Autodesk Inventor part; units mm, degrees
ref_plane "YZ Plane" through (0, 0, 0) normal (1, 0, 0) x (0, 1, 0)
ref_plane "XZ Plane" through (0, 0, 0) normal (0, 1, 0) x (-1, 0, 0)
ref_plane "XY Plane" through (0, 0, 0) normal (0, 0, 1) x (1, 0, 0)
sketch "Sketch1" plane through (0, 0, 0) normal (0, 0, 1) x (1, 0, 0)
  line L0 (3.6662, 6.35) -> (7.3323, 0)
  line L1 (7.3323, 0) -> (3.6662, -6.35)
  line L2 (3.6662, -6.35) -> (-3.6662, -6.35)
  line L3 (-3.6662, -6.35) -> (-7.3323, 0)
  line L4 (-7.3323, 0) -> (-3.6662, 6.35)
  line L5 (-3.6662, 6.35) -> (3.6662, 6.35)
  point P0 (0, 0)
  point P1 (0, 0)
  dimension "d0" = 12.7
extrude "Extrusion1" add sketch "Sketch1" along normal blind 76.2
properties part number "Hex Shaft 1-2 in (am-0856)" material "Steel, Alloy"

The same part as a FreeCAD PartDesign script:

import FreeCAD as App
import Part
import Sketcher
from FreeCAD import Vector
Q = App.Units.Quantity


def add_polygon(sketch, points):
    """Adds a closed chain of lines whose ends are joined by coincident constraints."""
    first, n = sketch.GeometryCount, len(points)
    for a, b in zip(points, points[1:] + points[:1]):
        sketch.addGeometry(Part.LineSegment(App.Vector(*a, 0), App.Vector(*b, 0)), False)
    for i in range(n):
        sketch.addConstraint(Sketcher.Constraint("Coincident", first + i, 2, first + (i + 1) % n, 1))

doc = App.newDocument("Part")
body = doc.addObject("PartDesign::Body", "Body")

# Sketch on XY plane
sketch1 = body.newObject("Sketcher::SketchObject", "Sketch")
sketch1.AttachmentSupport = (doc.getObject("XY_Plane"), [""])
sketch1.MapMode = "FlatFace"
add_polygon(sketch1, [(7.3323, 0), (3.6662, 6.35), (-3.6662, 6.35), (-7.3323, 0), (-3.6662, -6.35), (3.6662, -6.35)])  # lines 0-5
sketch1.addConstraint([
    Sketcher.Constraint("Horizontal", 1),
    Sketcher.Constraint("Horizontal", 4),
    Sketcher.Constraint("Symmetric", 0, 2, 3, 2, -1, 1),
    Sketcher.Constraint("Symmetric", 2, 2, 5, 2, -1, 1),
    Sketcher.Constraint("PointOnObject", 2, 2, -1),
    Sketcher.Constraint("Parallel", 2, 5),
    Sketcher.Constraint("Vertical", 1, 2, 3, 2),
    Sketcher.Constraint("DistanceY", 3, 2, 1, 2, Q("0.5 in")),
    Sketcher.Constraint("Angle", 0, Q("119.9995 deg")),
    Sketcher.Constraint("DistanceX", 2, 2, 0, 2, Q("0.433 in")),
])
pad1 = body.newObject("PartDesign::Pad", "Pad")
pad1.Profile = sketch1
pad1.Length = Q("3 in")

doc.recompute()
